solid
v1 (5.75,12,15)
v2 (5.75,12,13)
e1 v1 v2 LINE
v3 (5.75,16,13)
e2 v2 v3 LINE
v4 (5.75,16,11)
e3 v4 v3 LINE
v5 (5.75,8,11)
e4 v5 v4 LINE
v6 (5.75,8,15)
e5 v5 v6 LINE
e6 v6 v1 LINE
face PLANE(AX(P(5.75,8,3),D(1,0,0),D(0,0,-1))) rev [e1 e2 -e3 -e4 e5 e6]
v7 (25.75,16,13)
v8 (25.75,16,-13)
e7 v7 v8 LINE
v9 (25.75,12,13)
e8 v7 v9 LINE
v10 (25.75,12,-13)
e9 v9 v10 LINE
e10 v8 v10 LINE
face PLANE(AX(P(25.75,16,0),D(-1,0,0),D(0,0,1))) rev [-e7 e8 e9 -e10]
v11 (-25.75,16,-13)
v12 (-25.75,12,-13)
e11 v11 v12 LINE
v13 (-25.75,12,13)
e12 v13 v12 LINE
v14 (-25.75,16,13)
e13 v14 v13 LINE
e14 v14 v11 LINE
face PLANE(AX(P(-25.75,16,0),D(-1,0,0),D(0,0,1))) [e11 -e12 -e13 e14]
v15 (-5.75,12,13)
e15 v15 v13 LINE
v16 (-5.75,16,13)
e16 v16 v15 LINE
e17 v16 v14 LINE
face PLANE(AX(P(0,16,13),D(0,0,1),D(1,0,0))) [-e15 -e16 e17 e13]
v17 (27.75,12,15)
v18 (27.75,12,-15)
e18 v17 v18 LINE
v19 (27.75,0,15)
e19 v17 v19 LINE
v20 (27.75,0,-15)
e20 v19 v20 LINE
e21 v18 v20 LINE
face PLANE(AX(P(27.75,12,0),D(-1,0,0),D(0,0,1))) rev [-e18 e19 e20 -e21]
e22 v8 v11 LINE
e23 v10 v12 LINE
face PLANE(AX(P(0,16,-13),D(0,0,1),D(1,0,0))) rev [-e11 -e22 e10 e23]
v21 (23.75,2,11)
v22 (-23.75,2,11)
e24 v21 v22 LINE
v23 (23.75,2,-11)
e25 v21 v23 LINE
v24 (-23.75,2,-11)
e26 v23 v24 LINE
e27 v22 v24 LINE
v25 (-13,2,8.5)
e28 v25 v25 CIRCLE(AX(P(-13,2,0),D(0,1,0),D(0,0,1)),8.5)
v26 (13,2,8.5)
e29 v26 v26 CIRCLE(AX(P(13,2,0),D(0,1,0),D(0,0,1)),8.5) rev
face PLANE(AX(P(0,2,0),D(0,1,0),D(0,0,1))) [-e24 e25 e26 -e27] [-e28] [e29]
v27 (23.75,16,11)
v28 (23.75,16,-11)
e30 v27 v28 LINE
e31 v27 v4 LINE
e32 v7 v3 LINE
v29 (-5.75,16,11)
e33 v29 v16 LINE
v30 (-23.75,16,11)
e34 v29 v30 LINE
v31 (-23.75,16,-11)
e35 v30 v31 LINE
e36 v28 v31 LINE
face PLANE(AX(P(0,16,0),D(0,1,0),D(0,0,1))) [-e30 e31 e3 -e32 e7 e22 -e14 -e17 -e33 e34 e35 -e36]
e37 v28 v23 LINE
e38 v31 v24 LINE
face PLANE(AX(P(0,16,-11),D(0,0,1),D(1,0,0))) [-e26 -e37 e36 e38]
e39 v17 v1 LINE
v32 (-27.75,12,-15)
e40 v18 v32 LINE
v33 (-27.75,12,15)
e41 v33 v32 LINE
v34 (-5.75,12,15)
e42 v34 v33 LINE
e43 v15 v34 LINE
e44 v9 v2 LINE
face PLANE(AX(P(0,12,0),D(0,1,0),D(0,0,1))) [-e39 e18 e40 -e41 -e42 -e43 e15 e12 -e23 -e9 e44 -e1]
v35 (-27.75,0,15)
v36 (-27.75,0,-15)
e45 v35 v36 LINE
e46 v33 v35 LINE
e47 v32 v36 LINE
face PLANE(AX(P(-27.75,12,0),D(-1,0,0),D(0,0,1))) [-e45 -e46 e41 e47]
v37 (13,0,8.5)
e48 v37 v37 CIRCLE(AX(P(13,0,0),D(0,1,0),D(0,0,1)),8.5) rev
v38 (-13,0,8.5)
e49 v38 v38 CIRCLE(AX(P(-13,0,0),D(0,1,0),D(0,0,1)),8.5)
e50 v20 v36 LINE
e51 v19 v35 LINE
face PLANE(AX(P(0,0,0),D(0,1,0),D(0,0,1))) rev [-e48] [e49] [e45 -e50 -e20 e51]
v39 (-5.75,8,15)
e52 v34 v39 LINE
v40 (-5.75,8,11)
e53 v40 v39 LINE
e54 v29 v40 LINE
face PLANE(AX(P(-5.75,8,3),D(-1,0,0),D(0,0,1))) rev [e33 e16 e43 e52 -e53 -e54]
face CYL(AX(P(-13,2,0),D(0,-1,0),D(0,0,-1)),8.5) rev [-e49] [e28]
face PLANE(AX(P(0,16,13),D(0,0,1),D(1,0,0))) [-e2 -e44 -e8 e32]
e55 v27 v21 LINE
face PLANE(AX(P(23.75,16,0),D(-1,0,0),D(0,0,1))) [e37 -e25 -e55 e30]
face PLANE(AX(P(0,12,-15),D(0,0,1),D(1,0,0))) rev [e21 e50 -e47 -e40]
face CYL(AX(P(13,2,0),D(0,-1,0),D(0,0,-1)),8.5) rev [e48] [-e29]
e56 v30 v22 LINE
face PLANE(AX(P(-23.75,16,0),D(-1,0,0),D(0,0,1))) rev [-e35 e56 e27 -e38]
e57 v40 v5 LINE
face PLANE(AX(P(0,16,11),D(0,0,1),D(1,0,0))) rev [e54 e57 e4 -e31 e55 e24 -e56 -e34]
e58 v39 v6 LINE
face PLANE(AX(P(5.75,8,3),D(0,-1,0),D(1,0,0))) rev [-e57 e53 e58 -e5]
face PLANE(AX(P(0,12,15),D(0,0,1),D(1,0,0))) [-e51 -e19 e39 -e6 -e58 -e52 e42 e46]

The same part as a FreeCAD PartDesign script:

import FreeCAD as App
import Part
import Sketcher
from FreeCAD import Vector
Q = App.Units.Quantity

doc = App.newDocument("Part")
body = doc.addObject("PartDesign::Body", "Body")

# Sketch on XZ plane
sketch1 = body.newObject("Sketcher::SketchObject", "Sketch")
sketch1.AttachmentSupport = (doc.getObject("XZ_Plane"), [""])
sketch1.MapMode = "FlatFace"
sketch1.addGeometry([
    Part.LineSegment(Vector(-23.75, -11, 0), Vector(-23.75, 11, 0)),  # 0
    Part.LineSegment(Vector(-23.75, 11, 0), Vector(23.75, 11, 0)),  # 1
    Part.LineSegment(Vector(23.75, 11, 0), Vector(23.75, -11, 0)),  # 2
    Part.LineSegment(Vector(23.75, -11, 0), Vector(-23.75, -11, 0)),  # 3
    Part.Circle(Vector(-13, 0, 0), Vector(0, 0, 1), 8.5),  # 4
    Part.Circle(Vector(13, 0, 0), Vector(0, 0, 1), 8.5),  # 5
], False)
sketch1.addConstraint([
    Sketcher.Constraint("Coincident", 0, 2, 1, 1),
    Sketcher.Constraint("Coincident", 1, 2, 2, 1),
    Sketcher.Constraint("Coincident", 2, 2, 3, 1),
    Sketcher.Constraint("Coincident", 3, 2, 0, 1),
    Sketcher.Constraint("Vertical", 0),
    Sketcher.Constraint("Horizontal", 1),
    Sketcher.Constraint("Vertical", 2),
    Sketcher.Constraint("Horizontal", 3),
    Sketcher.Constraint("Equal", 4, 5),
    Sketcher.Constraint("Symmetric", 4, 3, 5, 3, -1, 1),
    Sketcher.Constraint("Symmetric", 0, 2, 2, 2, -1, 1),
    Sketcher.Constraint("PointOnObject", 4, 3, -1),
    Sketcher.Constraint("Diameter", 4, Q("17 mm")),
    Sketcher.Constraint("DistanceY", 0, 1, 0, 2, Q("22 mm")),
    Sketcher.Constraint("DistanceX", 1, 1, 1, 2, Q("47.5 mm")),
    Sketcher.Constraint("DistanceX", 4, 3, -1, 1, Q("13 mm")),
])
pad1 = body.newObject("PartDesign::Pad", "Pad")
pad1.Profile = sketch1
pad1.Length = 2
pad1.Reversed = True

# Sketch on XZ plane
sketch2 = body.newObject("Sketcher::SketchObject", "Sketch001")
sketch2.AttachmentSupport = (doc.getObject("XZ_Plane"), [""])
sketch2.MapMode = "FlatFace"
sketch2.addGeometry([
    Part.LineSegment(Vector(-25.75, -13, 0), Vector(-25.75, 13, 0)),  # 0
    Part.LineSegment(Vector(-25.75, 13, 0), Vector(25.75, 13, 0)),  # 1
    Part.LineSegment(Vector(25.75, 13, 0), Vector(25.75, -13, 0)),  # 2
    Part.LineSegment(Vector(25.75, -13, 0), Vector(-25.75, -13, 0)),  # 3
    Part.LineSegment(Vector(23.75, 11, 0), Vector(-23.75, 11, 0)),  # 4
    Part.LineSegment(Vector(-23.75, 11, 0), Vector(-23.75, -11, 0)),  # 5
    Part.LineSegment(Vector(-23.75, -11, 0), Vector(23.75, -11, 0)),  # 6
    Part.LineSegment(Vector(23.75, -11, 0), Vector(23.75, 11, 0)),  # 7
], False)
sketch2.addConstraint([
    Sketcher.Constraint("Coincident", 0, 2, 1, 1),
    Sketcher.Constraint("Coincident", 1, 2, 2, 1),
    Sketcher.Constraint("Coincident", 2, 2, 3, 1),
    Sketcher.Constraint("Coincident", 3, 2, 0, 1),
    Sketcher.Constraint("Coincident", 4, 2, 5, 1),
    Sketcher.Constraint("Coincident", 5, 2, 6, 1),
    Sketcher.Constraint("Coincident", 6, 2, 7, 1),
    Sketcher.Constraint("Coincident", 7, 2, 4, 1),
    Sketcher.Constraint("Vertical", 0),
    Sketcher.Constraint("Horizontal", 1),
    Sketcher.Constraint("Vertical", 2),
    Sketcher.Constraint("Horizontal", 3),
    Sketcher.Constraint("Horizontal", 4),
    Sketcher.Constraint("Vertical", 5),
    Sketcher.Constraint("Horizontal", 6),
    Sketcher.Constraint("Vertical", 7),
    Sketcher.Constraint("Symmetric", 0, 2, 2, 2, -1, 1),
    Sketcher.Constraint("Symmetric", 4, 2, 6, 2, -1, 1),
    Sketcher.Constraint("DistanceY", 0, 1, 0, 2, Q("26 mm")),
    Sketcher.Constraint("DistanceY", 5, 2, 5, 1, Q("22 mm")),
    Sketcher.Constraint("DistanceX", 1, 1, 1, 2, Q("51.5 mm")),
    Sketcher.Constraint("DistanceX", 4, 2, 4, 1, Q("47.5 mm")),
])
pad2 = body.newObject("PartDesign::Pad", "Pad001")
pad2.Profile = sketch2
pad2.Length = 16
pad2.Reversed = True

# Sketch on XZ plane
sketch3 = body.newObject("Sketcher::SketchObject", "Sketch002")
sketch3.AttachmentSupport = (doc.getObject("XZ_Plane"), [""])
sketch3.MapMode = "FlatFace"
sketch3.addGeometry([
    Part.LineSegment(Vector(-27.75, -15, 0), Vector(-27.75, 15, 0)),  # 0
    Part.LineSegment(Vector(-27.75, 15, 0), Vector(27.75, 15, 0)),  # 1
    Part.LineSegment(Vector(27.75, 15, 0), Vector(27.75, -15, 0)),  # 2
    Part.LineSegment(Vector(27.75, -15, 0), Vector(-27.75, -15, 0)),  # 3
    Part.LineSegment(Vector(25.75, 13, 0), Vector(-25.75, 13, 0)),  # 4
    Part.LineSegment(Vector(-25.75, 13, 0), Vector(-25.75, -13, 0)),  # 5
    Part.LineSegment(Vector(-25.75, -13, 0), Vector(25.75, -13, 0)),  # 6
    Part.LineSegment(Vector(25.75, -13, 0), Vector(25.75, 13, 0)),  # 7
], False)
sketch3.addConstraint([
    Sketcher.Constraint("Coincident", 0, 2, 1, 1),
    Sketcher.Constraint("Coincident", 1, 2, 2, 1),
    Sketcher.Constraint("Coincident", 2, 2, 3, 1),
    Sketcher.Constraint("Coincident", 3, 2, 0, 1),
    Sketcher.Constraint("Coincident", 4, 2, 5, 1),
    Sketcher.Constraint("Coincident", 5, 2, 6, 1),
    Sketcher.Constraint("Coincident", 6, 2, 7, 1),
    Sketcher.Constraint("Coincident", 7, 2, 4, 1),
    Sketcher.Constraint("Vertical", 0),
    Sketcher.Constraint("Horizontal", 1),
    Sketcher.Constraint("Vertical", 2),
    Sketcher.Constraint("Horizontal", 3),
    Sketcher.Constraint("Horizontal", 4),
    Sketcher.Constraint("Vertical", 5),
    Sketcher.Constraint("Horizontal", 6),
    Sketcher.Constraint("Vertical", 7),
    Sketcher.Constraint("Symmetric", 0, 2, 2, 2, -1, 1),
    Sketcher.Constraint("Symmetric", 4, 2, 6, 2, -1, 1),
    Sketcher.Constraint("DistanceY", 0, 1, 0, 2, Q("30 mm")),
    Sketcher.Constraint("DistanceY", 5, 2, 5, 1, Q("26 mm")),
    Sketcher.Constraint("DistanceX", 1, 1, 1, 2, Q("55.5 mm")),
    Sketcher.Constraint("DistanceX", 4, 2, 4, 1, Q("51.5 mm")),
])
pad3 = body.newObject("PartDesign::Pad", "Pad002")
pad3.Profile = sketch3
pad3.Length = 12
pad3.Reversed = True

# Sketch on XY plane
sketch4 = body.newObject("Sketcher::SketchObject", "Sketch003")
sketch4.AttachmentSupport = (doc.getObject("XY_Plane"), [""])
sketch4.MapMode = "FlatFace"
sketch4.AttachmentOffset = App.Placement(Vector(0, 0, 15), App.Rotation())
sketch4.addGeometry([
    Part.LineSegment(Vector(-5.75, 16, 0), Vector(-5.75, 8, 0)),
    Part.LineSegment(Vector(-5.75, 8, 0), Vector(5.75, 8, 0)),
    Part.LineSegment(Vector(5.75, 8, 0), Vector(5.75, 16, 0)),
    Part.LineSegment(Vector(5.75, 16, 0), Vector(-5.75, 16, 0)),
], False)
sketch4.addConstraint([
    Sketcher.Constraint("Coincident", 0, 2, 1, 1),
    Sketcher.Constraint("Coincident", 1, 2, 2, 1),
    Sketcher.Constraint("Coincident", 2, 2, 3, 1),
    Sketcher.Constraint("Coincident", 3, 2, 0, 1),
    Sketcher.Constraint("Vertical", 0),
    Sketcher.Constraint("Horizontal", 1),
    Sketcher.Constraint("Vertical", 2),
    Sketcher.Constraint("Horizontal", 3),
    Sketcher.Constraint("DistanceY", 0, 2, 0, 1, Q("8 mm")),
    Sketcher.Constraint("DistanceX", 1, 1, 1, 2, Q("11.5 mm")),
    Sketcher.Constraint("DistanceY", -1, 1, 0, 2, Q("8 mm")),
    Sketcher.Constraint("DistanceX", 0, 2, -1, 1, Q("5.75 mm")),
])
pocket1 = body.newObject("PartDesign::Pocket", "Pocket")
pocket1.Profile = sketch4
pocket1.Length = 12

doc.recompute()
